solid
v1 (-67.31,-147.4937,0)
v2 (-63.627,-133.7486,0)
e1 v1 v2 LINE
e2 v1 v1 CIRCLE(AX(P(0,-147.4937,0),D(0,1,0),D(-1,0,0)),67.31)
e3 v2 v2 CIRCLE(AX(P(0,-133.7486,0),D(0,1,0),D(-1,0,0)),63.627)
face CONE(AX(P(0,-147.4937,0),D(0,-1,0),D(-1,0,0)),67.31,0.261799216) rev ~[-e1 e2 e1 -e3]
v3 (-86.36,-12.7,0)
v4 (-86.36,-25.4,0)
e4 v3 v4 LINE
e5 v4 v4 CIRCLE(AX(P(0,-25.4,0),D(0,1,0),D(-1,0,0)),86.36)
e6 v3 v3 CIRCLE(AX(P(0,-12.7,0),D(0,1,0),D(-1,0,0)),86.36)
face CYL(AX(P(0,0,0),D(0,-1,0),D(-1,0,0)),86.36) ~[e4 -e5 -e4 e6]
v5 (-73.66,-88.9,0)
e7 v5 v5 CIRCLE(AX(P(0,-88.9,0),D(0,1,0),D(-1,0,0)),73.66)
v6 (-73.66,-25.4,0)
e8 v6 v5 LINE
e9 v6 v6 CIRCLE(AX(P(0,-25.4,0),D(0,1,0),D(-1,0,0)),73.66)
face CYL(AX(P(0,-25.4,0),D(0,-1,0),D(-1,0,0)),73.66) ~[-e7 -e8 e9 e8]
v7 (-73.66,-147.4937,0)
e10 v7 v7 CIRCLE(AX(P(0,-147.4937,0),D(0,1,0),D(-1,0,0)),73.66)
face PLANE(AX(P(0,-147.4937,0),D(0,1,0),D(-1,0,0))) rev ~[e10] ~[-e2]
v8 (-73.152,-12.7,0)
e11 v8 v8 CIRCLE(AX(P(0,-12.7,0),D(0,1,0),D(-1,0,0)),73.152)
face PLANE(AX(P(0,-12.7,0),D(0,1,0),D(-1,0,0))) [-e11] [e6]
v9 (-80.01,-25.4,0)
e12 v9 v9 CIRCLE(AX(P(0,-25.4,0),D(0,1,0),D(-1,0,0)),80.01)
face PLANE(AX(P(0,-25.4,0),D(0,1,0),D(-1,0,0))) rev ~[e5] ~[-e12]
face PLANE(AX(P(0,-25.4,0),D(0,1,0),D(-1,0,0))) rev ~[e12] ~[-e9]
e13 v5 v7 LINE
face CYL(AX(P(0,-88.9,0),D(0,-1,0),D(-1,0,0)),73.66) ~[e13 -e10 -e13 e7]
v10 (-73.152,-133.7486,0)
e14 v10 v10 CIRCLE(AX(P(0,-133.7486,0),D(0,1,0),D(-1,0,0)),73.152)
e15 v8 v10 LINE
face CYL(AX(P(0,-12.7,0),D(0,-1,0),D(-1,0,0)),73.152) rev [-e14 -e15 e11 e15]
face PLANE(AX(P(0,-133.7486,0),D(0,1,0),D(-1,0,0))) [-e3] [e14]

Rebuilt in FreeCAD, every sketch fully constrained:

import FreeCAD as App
import Part
import Sketcher
from FreeCAD import Vector
Q = App.Units.Quantity


def add_polygon(sketch, points):
    """Adds a closed chain of lines whose ends are joined by coincident constraints."""
    first, n = sketch.GeometryCount, len(points)
    for a, b in zip(points, points[1:] + points[:1]):
        sketch.addGeometry(Part.LineSegment(App.Vector(*a, 0), App.Vector(*b, 0)), False)
    for i in range(n):
        sketch.addConstraint(Sketcher.Constraint("Coincident", first + i, 2, first + (i + 1) % n, 1))

doc = App.newDocument("Part")
body = doc.addObject("PartDesign::Body", "Body")

sketch1 = body.newObject("Sketcher::SketchObject", "Sketch")
sketch1.AttachmentSupport = (doc.getObject("XY_Plane"), [""])
sketch1.MapMode = "FlatFace"
add_polygon(sketch1, [(-73, -13), (-86, -13), (-86, -25), (-74, -25), (-74, -147), (-67, -147), (-64, -134), (-73, -134)])
sketch1.addConstraint([
    Sketcher.Constraint("Horizontal", 0),
    Sketcher.Constraint("Vertical", 1),
    Sketcher.Constraint("Horizontal", 2),
    Sketcher.Constraint("Vertical", 3),
    Sketcher.Constraint("Horizontal", 4),
    Sketcher.Constraint("Horizontal", 6),
    Sketcher.Constraint("Vertical", 7),
    Sketcher.Constraint("Equal", 2, 1),
    Sketcher.Constraint("DistanceX", 2, 1, 2, 2, Q("0.5 in")),
    Sketcher.Constraint("DistanceY", 1, 2, -1, 1, Q("1 in")),
    Sketcher.Constraint("DistanceX", 4, 1, 4, 2, Q("0.25 in")),
    Sketcher.Constraint("DistanceX", 0, 2, -1, 1, Q("3.4 in")),
    Sketcher.Constraint("DistanceX", 6, 2, 6, 1, Q("0.375 in")),
    Sketcher.Constraint("Angle", 5, Q("75 deg")),
    Sketcher.Constraint("DistanceX", 0, 2, 0, 1, Q("0.52 in")),
    Sketcher.Constraint("DistanceY", 7, 1, 7, 2, Q("4.7657 in")),
])
revolution = body.newObject("PartDesign::Revolution", "Revolution")
revolution.Profile = sketch1
revolution.ReferenceAxis = (sketch1, ["V_Axis"])
revolution.Angle = 360

doc.recompute()
